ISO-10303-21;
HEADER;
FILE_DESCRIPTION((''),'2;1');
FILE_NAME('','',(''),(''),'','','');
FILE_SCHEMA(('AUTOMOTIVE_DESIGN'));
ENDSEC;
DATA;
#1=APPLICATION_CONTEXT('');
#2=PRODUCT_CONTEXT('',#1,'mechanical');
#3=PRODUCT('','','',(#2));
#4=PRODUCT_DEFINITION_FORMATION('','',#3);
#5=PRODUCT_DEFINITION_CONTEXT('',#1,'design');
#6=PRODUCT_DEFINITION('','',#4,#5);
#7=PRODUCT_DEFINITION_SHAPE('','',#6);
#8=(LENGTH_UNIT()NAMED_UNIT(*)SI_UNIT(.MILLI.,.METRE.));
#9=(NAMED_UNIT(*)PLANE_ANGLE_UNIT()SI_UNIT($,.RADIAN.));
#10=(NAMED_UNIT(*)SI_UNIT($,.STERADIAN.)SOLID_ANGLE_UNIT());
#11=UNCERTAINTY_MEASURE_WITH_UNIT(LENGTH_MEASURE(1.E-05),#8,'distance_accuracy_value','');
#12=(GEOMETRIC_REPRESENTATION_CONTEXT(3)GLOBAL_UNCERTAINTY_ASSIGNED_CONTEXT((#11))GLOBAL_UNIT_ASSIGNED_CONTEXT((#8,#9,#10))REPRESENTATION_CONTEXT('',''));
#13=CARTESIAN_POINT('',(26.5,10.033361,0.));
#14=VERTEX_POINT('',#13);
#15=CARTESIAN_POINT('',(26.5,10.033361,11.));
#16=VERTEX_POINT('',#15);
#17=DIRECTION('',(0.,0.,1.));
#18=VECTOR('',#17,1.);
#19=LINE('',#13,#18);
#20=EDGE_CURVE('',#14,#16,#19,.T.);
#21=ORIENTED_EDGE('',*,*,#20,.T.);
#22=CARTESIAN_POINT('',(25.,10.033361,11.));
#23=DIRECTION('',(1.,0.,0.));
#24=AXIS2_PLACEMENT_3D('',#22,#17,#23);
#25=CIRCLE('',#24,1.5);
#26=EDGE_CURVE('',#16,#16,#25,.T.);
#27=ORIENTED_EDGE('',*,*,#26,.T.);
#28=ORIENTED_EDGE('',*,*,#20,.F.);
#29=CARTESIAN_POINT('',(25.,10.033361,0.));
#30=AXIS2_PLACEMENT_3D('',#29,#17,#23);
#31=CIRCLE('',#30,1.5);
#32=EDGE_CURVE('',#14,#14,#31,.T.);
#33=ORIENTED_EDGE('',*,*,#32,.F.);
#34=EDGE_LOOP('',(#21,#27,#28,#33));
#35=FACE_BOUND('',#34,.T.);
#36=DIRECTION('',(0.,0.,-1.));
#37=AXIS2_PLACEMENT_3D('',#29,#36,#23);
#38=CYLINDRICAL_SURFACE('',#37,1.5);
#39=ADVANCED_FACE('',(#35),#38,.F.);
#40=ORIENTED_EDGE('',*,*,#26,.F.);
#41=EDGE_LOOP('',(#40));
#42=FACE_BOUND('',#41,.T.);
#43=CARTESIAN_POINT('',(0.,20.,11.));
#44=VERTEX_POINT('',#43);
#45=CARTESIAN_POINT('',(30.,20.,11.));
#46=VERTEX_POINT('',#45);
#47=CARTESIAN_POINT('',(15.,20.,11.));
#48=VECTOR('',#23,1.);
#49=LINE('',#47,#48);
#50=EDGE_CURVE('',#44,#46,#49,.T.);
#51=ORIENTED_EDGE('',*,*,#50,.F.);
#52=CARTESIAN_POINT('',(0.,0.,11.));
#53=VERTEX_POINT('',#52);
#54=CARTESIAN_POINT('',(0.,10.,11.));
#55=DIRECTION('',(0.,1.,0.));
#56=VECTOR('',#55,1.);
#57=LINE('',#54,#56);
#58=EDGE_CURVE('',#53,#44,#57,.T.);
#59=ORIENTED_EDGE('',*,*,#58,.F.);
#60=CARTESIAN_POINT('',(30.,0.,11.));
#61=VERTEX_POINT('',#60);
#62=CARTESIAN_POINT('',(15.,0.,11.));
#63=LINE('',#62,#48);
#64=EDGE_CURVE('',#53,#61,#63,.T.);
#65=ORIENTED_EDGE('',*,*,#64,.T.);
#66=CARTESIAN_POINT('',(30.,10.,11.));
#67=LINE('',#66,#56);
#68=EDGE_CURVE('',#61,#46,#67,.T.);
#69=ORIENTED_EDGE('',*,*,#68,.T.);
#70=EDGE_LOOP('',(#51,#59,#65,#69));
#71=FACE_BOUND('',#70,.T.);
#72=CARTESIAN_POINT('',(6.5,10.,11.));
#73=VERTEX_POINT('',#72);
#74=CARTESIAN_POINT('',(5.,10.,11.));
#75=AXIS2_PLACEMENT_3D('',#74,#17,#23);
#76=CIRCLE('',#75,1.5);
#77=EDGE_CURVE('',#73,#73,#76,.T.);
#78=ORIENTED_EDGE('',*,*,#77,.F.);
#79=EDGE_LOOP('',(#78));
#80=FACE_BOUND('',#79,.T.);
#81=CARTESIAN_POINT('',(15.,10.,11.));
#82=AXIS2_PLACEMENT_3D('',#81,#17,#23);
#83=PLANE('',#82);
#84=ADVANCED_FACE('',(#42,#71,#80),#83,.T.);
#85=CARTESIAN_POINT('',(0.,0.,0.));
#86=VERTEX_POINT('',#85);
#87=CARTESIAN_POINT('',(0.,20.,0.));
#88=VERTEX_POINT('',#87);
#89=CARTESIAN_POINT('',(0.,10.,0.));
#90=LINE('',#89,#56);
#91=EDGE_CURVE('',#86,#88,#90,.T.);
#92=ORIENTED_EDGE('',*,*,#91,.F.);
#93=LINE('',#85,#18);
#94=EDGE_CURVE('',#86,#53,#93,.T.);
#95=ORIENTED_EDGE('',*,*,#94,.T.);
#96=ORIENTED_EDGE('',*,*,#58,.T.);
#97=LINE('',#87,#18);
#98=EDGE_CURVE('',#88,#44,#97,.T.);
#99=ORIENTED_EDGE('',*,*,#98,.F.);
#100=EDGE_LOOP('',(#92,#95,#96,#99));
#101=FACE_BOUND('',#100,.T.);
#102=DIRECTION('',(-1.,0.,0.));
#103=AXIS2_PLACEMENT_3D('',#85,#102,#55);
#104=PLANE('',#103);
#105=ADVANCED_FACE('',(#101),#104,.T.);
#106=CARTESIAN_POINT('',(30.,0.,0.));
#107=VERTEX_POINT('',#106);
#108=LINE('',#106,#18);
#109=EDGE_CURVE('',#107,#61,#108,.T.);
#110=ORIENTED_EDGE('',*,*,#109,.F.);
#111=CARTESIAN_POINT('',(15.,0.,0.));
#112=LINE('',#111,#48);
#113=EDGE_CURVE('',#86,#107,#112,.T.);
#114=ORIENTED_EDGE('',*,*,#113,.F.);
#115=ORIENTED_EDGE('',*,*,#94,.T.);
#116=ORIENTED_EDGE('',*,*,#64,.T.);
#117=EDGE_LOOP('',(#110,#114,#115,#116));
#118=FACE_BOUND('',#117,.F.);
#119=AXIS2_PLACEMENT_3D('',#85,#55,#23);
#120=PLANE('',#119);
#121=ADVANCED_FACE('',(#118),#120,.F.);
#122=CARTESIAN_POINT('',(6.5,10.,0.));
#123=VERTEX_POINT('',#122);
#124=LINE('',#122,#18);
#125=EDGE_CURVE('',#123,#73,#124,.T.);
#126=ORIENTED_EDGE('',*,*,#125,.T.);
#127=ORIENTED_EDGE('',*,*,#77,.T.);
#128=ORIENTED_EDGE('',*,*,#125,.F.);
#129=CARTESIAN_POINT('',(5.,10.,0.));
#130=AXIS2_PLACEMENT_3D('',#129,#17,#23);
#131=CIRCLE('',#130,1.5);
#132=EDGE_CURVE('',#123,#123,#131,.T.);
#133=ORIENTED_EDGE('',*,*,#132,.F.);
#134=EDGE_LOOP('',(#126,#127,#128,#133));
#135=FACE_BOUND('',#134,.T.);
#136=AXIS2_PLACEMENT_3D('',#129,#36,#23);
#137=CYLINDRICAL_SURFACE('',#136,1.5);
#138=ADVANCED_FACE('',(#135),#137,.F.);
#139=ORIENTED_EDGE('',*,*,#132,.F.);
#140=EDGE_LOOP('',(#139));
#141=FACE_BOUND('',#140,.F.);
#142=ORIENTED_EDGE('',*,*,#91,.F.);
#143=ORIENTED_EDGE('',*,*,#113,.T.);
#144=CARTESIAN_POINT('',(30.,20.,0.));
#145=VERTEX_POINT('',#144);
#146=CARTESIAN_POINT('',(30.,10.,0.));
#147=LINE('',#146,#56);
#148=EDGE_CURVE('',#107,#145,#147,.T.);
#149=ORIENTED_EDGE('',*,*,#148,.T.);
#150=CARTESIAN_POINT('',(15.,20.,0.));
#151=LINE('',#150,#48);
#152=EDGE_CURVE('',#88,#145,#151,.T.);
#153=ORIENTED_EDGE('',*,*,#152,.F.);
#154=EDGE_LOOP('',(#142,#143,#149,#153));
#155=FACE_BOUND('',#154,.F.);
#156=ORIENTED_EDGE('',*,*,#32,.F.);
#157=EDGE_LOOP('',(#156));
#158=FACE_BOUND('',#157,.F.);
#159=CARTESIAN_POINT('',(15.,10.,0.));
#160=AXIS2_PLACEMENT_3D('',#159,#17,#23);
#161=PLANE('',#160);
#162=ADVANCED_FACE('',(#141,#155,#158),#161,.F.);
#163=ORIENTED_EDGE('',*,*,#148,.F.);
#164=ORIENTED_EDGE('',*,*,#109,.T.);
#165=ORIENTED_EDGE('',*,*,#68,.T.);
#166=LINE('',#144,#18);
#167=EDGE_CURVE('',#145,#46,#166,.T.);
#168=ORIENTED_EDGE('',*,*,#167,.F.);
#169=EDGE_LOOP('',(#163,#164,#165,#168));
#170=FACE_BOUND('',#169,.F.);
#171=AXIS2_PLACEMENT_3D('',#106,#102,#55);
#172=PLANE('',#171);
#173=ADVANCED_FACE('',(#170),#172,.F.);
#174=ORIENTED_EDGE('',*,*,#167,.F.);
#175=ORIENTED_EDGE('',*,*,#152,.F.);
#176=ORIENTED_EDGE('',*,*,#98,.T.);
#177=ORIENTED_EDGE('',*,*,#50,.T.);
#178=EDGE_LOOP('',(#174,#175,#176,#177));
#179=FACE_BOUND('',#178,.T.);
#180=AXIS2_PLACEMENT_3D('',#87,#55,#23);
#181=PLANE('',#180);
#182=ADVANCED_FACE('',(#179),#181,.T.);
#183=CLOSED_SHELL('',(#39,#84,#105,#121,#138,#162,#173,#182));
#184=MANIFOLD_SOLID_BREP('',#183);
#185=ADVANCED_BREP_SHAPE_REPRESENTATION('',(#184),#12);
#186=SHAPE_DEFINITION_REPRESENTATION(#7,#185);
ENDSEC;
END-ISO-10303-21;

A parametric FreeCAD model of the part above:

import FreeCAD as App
import Part
import Sketcher
Q = App.Units.Quantity

doc = App.newDocument("Part")
body = doc.addObject("PartDesign::Body", "Body")

sketch1 = body.newObject("Sketcher::SketchObject", "Sketch")
sketch1.AttachmentSupport = (doc.getObject("XY_Plane"), [""])
sketch1.MapMode = "FlatFace"
sketch1.addGeometry(Part.LineSegment(App.Vector(0, 20, 0), App.Vector(0, 0, 0)), False)
sketch1.addGeometry(Part.LineSegment(App.Vector(0, 0, 0), App.Vector(30, 0, 0)), False)
sketch1.addGeometry(Part.LineSegment(App.Vector(30, 0, 0), App.Vector(30, 20, 0)), False)
sketch1.addGeometry(Part.LineSegment(App.Vector(30, 20, 0), App.Vector(0, 20, 0)), False)
sketch1.addGeometry(Part.Circle(App.Vector(5, 10, 0), App.Vector(0, 0, 1), 1.5), False)
sketch1.addGeometry(Part.Circle(App.Vector(25, 10, 0), App.Vector(0, 0, 1), 1.5), False)
sketch1.addConstraint(Sketcher.Constraint("Coincident", 0, 2, 1, 1))
sketch1.addConstraint(Sketcher.Constraint("Coincident", 1, 2, 2, 1))
sketch1.addConstraint(Sketcher.Constraint("Coincident", 2, 2, 3, 1))
sketch1.addConstraint(Sketcher.Constraint("Coincident", 3, 2, 0, 1))
sketch1.addConstraint(Sketcher.Constraint("Vertical", 0))
sketch1.addConstraint(Sketcher.Constraint("Horizontal", 1))
sketch1.addConstraint(Sketcher.Constraint("Vertical", 2))
sketch1.addConstraint(Sketcher.Constraint("Horizontal", 3))
sketch1.addConstraint(Sketcher.Constraint("Coincident", 0, 2, -1, 1))
sketch1.addConstraint(Sketcher.Constraint("Equal", 4, 5))
sketch1.addConstraint(Sketcher.Constraint("Diameter", 4, Q("3 mm")))
sketch1.addConstraint(Sketcher.Constraint("DistanceX", 1, 1, 1, 2, Q("30 mm")))
sketch1.addConstraint(Sketcher.Constraint("DistanceY", 0, 2, 0, 1, Q("20 mm")))
sketch1.addConstraint(Sketcher.Constraint("DistanceX", -1, 1, 4, 3, Q("5 mm")))
sketch1.addConstraint(Sketcher.Constraint("DistanceY", -1, 1, 4, 3, Q("10 mm")))
sketch1.addConstraint(Sketcher.Constraint("DistanceX", -1, 1, 5, 3, Q("25 mm")))
sketch1.addConstraint(Sketcher.Constraint("DistanceY", -1, 1, 5, 3, Q("10.033361 mm")))
pad1 = body.newObject("PartDesign::Pad", "Pad")
pad1.Profile = sketch1
pad1.Length = 11

doc.recompute()
